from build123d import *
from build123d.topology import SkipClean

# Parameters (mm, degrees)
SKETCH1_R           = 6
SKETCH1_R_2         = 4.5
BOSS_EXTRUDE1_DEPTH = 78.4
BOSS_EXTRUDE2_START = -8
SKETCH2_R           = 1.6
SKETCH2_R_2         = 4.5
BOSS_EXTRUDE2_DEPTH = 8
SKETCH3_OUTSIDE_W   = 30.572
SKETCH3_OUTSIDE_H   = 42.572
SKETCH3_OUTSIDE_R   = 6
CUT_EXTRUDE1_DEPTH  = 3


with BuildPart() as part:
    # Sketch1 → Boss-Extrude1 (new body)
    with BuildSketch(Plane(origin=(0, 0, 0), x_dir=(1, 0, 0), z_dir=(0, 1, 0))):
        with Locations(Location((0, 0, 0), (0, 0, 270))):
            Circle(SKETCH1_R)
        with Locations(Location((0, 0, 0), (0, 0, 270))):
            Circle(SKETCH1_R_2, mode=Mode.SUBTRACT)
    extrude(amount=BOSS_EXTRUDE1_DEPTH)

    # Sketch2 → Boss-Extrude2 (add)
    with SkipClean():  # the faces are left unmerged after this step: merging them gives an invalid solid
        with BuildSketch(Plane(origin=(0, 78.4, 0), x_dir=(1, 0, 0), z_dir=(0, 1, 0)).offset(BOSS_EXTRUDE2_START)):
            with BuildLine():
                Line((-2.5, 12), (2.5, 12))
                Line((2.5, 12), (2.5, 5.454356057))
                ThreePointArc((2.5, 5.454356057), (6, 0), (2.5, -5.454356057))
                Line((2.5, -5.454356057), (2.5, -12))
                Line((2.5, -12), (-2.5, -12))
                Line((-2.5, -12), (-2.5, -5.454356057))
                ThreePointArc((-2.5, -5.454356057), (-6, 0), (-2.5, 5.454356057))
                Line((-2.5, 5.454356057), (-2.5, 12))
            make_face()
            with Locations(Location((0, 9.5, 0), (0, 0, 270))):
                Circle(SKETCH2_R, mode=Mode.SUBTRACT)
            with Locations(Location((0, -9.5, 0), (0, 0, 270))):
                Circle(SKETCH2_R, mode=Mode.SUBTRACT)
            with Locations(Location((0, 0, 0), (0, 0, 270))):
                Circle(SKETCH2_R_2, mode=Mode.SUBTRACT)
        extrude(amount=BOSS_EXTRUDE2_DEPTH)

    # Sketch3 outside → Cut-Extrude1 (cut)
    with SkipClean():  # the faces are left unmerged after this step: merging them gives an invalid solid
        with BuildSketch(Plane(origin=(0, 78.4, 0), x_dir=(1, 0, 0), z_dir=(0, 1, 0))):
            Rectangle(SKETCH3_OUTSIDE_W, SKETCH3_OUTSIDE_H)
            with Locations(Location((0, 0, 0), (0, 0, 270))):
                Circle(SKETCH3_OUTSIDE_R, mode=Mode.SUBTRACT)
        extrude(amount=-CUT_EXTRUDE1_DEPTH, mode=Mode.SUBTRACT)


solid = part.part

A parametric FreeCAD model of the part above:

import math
import FreeCAD as App
import Part
import Sketcher
Q = App.Units.Quantity

doc = App.newDocument("Part")
body = doc.addObject("PartDesign::Body", "Body")

sketch1 = doc.addObject("Sketcher::SketchObject", "Sketch")
body.addObject(sketch1)
sketch1.AttachmentSupport = (doc.XZ_Plane, [""])
sketch1.MapMode = "FlatFace"
sketch1.addGeometry(Part.Circle(App.Vector(0, 0, 0), App.Vector(0, 0, 1), 6), False)
sketch1.addGeometry(Part.Circle(App.Vector(0, 0, 0), App.Vector(0, 0, 1), 4.5), False)
sketch1.addConstraint(Sketcher.Constraint("Coincident", 0, 3, -1, 1))
sketch1.addConstraint(Sketcher.Constraint("Coincident", 1, 3, -1, 1))
sketch1.addConstraint(Sketcher.Constraint("Diameter", 0, Q("12 mm")))
sketch1.addConstraint(Sketcher.Constraint("Diameter", 1, Q("9 mm")))
pad1 = doc.addObject("PartDesign::Pad", "Pad")
body.addObject(pad1)
pad1.Profile = sketch1
pad1.Length = 78.4
pad1.Reversed = True

sketch2 = doc.addObject("Sketcher::SketchObject", "Sketch001")
body.addObject(sketch2)
sketch2.AttachmentSupport = (doc.XZ_Plane, [""])
sketch2.MapMode = "FlatFace"
sketch2.AttachmentOffset = App.Placement(App.Vector(0, 0, -70.4), App.Rotation())
sketch2.addGeometry(Part.LineSegment(App.Vector(2.5, -12, 0), App.Vector(-2.5, -12, 0)), False)
sketch2.addGeometry(Part.LineSegment(App.Vector(-2.5, -12, 0), App.Vector(-2.5, -5.454356, 0)), False)
sketch2.addGeometry(Part.ArcOfCircle(Part.Circle(App.Vector(0, 0, 0), App.Vector(0, 0, 1), 6), math.radians(114.624318), math.radians(245.375682)), False)
sketch2.addGeometry(Part.LineSegment(App.Vector(-2.5, 5.454356, 0), App.Vector(-2.5, 12, 0)), False)
sketch2.addGeometry(Part.LineSegment(App.Vector(-2.5, 12, 0), App.Vector(2.5, 12, 0)), False)
sketch2.addGeometry(Part.LineSegment(App.Vector(2.5, 12, 0), App.Vector(2.5, 5.454356, 0)), False)
sketch2.addGeometry(Part.ArcOfCircle(Part.Circle(App.Vector(0, 0, 0), App.Vector(0, 0, 1), 6), math.radians(-65.375682), math.radians(65.375682)), False)
sketch2.addGeometry(Part.LineSegment(App.Vector(2.5, -5.454356, 0), App.Vector(2.5, -12, 0)), False)
sketch2.addGeometry(Part.Circle(App.Vector(0, 9.5, 0), App.Vector(0, 0, 1), 1.6), False)
sketch2.addGeometry(Part.Circle(App.Vector(0, 0, 0), App.Vector(0, 0, 1), 4.5), False)
sketch2.addGeometry(Part.Circle(App.Vector(0, -9.5, 0), App.Vector(0, 0, 1), 1.6), False)
sketch2.addConstraint(Sketcher.Constraint("Coincident", 0, 2, 1, 1))
sketch2.addConstraint(Sketcher.Constraint("Coincident", 1, 2, 2, 2))
sketch2.addConstraint(Sketcher.Constraint("Coincident", 2, 1, 3, 1))
sketch2.addConstraint(Sketcher.Constraint("Coincident", 3, 2, 4, 1))
sketch2.addConstraint(Sketcher.Constraint("Coincident", 4, 2, 5, 1))
sketch2.addConstraint(Sketcher.Constraint("Coincident", 5, 2, 6, 2))
sketch2.addConstraint(Sketcher.Constraint("Coincident", 6, 1, 7, 1))
sketch2.addConstraint(Sketcher.Constraint("Coincident", 7, 2, 0, 1))
sketch2.addConstraint(Sketcher.Constraint("Horizontal", 0))
sketch2.addConstraint(Sketcher.Constraint("Vertical", 1))
sketch2.addConstraint(Sketcher.Constraint("Vertical", 3))
sketch2.addConstraint(Sketcher.Constraint("Horizontal", 4))
sketch2.addConstraint(Sketcher.Constraint("Vertical", 5))
sketch2.addConstraint(Sketcher.Constraint("Vertical", 7))
sketch2.addConstraint(Sketcher.Constraint("Coincident", 2, 3, -1, 1))
sketch2.addConstraint(Sketcher.Constraint("Coincident", 6, 3, -1, 1))
sketch2.addConstraint(Sketcher.Constraint("Coincident", 9, 3, -1, 1))
sketch2.addConstraint(Sketcher.Constraint("Equal", 2, 6))
sketch2.addConstraint(Sketcher.Constraint("Equal", 8, 10))
sketch2.addConstraint(Sketcher.Constraint("Symmetric", 8, 3, 10, 3, -1, 1))
sketch2.addConstraint(Sketcher.Constraint("Symmetric", 0, 2, 4, 2, -1, 1))
sketch2.addConstraint(Sketcher.Constraint("PointOnObject", 8, 3, -2))
sketch2.addConstraint(Sketcher.Constraint("Horizontal", 2, 1, 5, 2))
sketch2.addConstraint(Sketcher.Constraint("Horizontal", 1, 2, 6, 1))
sketch2.addConstraint(Sketcher.Constraint("Diameter", 9, Q("9 mm")))
sketch2.addConstraint(Sketcher.Constraint("Radius", 2, Q("6 mm")))
sketch2.addConstraint(Sketcher.Constraint("Diameter", 8, Q("3.2 mm")))
sketch2.addConstraint(Sketcher.Constraint("DistanceX", 0, 2, 0, 1, Q("5 mm")))
sketch2.addConstraint(Sketcher.Constraint("DistanceY", 0, 2, -1, 1, Q("12 mm")))
sketch2.addConstraint(Sketcher.Constraint("DistanceY", 10, 3, 8, 3, Q("19 mm")))
pad2 = doc.addObject("PartDesign::Pad", "Pad001")
body.addObject(pad2)
pad2.Profile = sketch2
pad2.Length = 8
pad2.Reversed = True

sketch3 = doc.addObject("Sketcher::SketchObject", "Sketch002")
body.addObject(sketch3)
sketch3.AttachmentSupport = (doc.XZ_Plane, [""])
sketch3.MapMode = "FlatFace"
sketch3.AttachmentOffset = App.Placement(App.Vector(0, 0, -78.4), App.Rotation())
sketch3.addGeometry(Part.LineSegment(App.Vector(-15.286, -21.286, 0), App.Vector(-15.286, 21.286, 0)), False)
sketch3.addGeometry(Part.LineSegment(App.Vector(-15.286, 21.286, 0), App.Vector(15.286, 21.286, 0)), False)
sketch3.addGeometry(Part.LineSegment(App.Vector(15.286, 21.286, 0), App.Vector(15.286, -21.286, 0)), False)
sketch3.addGeometry(Part.LineSegment(App.Vector(15.286, -21.286, 0), App.Vector(-15.286, -21.286, 0)), False)
sketch3.addGeometry(Part.Circle(App.Vector(0, 0, 0), App.Vector(0, 0, 1), 6), False)
sketch3.addConstraint(Sketcher.Constraint("Coincident", 0, 2, 1, 1))
sketch3.addConstraint(Sketcher.Constraint("Coincident", 1, 2, 2, 1))
sketch3.addConstraint(Sketcher.Constraint("Coincident", 2, 2, 3, 1))
sketch3.addConstraint(Sketcher.Constraint("Coincident", 3, 2, 0, 1))
sketch3.addConstraint(Sketcher.Constraint("Vertical", 0))
sketch3.addConstraint(Sketcher.Constraint("Horizontal", 1))
sketch3.addConstraint(Sketcher.Constraint("Vertical", 2))
sketch3.addConstraint(Sketcher.Constraint("Horizontal", 3))
sketch3.addConstraint(Sketcher.Constraint("Coincident", 4, 3, -1, 1))
sketch3.addConstraint(Sketcher.Constraint("Symmetric", 0, 2, 2, 2, -1, 1))
sketch3.addConstraint(Sketcher.Constraint("Diameter", 4, Q("12 mm")))
sketch3.addConstraint(Sketcher.Constraint("DistanceX", 1, 1, 1, 2, Q("30.572 mm")))
sketch3.addConstraint(Sketcher.Constraint("DistanceY", 0, 1, 0, 2, Q("42.572 mm")))
pocket1 = doc.addObject("PartDesign::Pocket", "Pocket")
body.addObject(pocket1)
pocket1.Profile = sketch3
pocket1.Length = 3
pocket1.Reversed = True

doc.recompute()
